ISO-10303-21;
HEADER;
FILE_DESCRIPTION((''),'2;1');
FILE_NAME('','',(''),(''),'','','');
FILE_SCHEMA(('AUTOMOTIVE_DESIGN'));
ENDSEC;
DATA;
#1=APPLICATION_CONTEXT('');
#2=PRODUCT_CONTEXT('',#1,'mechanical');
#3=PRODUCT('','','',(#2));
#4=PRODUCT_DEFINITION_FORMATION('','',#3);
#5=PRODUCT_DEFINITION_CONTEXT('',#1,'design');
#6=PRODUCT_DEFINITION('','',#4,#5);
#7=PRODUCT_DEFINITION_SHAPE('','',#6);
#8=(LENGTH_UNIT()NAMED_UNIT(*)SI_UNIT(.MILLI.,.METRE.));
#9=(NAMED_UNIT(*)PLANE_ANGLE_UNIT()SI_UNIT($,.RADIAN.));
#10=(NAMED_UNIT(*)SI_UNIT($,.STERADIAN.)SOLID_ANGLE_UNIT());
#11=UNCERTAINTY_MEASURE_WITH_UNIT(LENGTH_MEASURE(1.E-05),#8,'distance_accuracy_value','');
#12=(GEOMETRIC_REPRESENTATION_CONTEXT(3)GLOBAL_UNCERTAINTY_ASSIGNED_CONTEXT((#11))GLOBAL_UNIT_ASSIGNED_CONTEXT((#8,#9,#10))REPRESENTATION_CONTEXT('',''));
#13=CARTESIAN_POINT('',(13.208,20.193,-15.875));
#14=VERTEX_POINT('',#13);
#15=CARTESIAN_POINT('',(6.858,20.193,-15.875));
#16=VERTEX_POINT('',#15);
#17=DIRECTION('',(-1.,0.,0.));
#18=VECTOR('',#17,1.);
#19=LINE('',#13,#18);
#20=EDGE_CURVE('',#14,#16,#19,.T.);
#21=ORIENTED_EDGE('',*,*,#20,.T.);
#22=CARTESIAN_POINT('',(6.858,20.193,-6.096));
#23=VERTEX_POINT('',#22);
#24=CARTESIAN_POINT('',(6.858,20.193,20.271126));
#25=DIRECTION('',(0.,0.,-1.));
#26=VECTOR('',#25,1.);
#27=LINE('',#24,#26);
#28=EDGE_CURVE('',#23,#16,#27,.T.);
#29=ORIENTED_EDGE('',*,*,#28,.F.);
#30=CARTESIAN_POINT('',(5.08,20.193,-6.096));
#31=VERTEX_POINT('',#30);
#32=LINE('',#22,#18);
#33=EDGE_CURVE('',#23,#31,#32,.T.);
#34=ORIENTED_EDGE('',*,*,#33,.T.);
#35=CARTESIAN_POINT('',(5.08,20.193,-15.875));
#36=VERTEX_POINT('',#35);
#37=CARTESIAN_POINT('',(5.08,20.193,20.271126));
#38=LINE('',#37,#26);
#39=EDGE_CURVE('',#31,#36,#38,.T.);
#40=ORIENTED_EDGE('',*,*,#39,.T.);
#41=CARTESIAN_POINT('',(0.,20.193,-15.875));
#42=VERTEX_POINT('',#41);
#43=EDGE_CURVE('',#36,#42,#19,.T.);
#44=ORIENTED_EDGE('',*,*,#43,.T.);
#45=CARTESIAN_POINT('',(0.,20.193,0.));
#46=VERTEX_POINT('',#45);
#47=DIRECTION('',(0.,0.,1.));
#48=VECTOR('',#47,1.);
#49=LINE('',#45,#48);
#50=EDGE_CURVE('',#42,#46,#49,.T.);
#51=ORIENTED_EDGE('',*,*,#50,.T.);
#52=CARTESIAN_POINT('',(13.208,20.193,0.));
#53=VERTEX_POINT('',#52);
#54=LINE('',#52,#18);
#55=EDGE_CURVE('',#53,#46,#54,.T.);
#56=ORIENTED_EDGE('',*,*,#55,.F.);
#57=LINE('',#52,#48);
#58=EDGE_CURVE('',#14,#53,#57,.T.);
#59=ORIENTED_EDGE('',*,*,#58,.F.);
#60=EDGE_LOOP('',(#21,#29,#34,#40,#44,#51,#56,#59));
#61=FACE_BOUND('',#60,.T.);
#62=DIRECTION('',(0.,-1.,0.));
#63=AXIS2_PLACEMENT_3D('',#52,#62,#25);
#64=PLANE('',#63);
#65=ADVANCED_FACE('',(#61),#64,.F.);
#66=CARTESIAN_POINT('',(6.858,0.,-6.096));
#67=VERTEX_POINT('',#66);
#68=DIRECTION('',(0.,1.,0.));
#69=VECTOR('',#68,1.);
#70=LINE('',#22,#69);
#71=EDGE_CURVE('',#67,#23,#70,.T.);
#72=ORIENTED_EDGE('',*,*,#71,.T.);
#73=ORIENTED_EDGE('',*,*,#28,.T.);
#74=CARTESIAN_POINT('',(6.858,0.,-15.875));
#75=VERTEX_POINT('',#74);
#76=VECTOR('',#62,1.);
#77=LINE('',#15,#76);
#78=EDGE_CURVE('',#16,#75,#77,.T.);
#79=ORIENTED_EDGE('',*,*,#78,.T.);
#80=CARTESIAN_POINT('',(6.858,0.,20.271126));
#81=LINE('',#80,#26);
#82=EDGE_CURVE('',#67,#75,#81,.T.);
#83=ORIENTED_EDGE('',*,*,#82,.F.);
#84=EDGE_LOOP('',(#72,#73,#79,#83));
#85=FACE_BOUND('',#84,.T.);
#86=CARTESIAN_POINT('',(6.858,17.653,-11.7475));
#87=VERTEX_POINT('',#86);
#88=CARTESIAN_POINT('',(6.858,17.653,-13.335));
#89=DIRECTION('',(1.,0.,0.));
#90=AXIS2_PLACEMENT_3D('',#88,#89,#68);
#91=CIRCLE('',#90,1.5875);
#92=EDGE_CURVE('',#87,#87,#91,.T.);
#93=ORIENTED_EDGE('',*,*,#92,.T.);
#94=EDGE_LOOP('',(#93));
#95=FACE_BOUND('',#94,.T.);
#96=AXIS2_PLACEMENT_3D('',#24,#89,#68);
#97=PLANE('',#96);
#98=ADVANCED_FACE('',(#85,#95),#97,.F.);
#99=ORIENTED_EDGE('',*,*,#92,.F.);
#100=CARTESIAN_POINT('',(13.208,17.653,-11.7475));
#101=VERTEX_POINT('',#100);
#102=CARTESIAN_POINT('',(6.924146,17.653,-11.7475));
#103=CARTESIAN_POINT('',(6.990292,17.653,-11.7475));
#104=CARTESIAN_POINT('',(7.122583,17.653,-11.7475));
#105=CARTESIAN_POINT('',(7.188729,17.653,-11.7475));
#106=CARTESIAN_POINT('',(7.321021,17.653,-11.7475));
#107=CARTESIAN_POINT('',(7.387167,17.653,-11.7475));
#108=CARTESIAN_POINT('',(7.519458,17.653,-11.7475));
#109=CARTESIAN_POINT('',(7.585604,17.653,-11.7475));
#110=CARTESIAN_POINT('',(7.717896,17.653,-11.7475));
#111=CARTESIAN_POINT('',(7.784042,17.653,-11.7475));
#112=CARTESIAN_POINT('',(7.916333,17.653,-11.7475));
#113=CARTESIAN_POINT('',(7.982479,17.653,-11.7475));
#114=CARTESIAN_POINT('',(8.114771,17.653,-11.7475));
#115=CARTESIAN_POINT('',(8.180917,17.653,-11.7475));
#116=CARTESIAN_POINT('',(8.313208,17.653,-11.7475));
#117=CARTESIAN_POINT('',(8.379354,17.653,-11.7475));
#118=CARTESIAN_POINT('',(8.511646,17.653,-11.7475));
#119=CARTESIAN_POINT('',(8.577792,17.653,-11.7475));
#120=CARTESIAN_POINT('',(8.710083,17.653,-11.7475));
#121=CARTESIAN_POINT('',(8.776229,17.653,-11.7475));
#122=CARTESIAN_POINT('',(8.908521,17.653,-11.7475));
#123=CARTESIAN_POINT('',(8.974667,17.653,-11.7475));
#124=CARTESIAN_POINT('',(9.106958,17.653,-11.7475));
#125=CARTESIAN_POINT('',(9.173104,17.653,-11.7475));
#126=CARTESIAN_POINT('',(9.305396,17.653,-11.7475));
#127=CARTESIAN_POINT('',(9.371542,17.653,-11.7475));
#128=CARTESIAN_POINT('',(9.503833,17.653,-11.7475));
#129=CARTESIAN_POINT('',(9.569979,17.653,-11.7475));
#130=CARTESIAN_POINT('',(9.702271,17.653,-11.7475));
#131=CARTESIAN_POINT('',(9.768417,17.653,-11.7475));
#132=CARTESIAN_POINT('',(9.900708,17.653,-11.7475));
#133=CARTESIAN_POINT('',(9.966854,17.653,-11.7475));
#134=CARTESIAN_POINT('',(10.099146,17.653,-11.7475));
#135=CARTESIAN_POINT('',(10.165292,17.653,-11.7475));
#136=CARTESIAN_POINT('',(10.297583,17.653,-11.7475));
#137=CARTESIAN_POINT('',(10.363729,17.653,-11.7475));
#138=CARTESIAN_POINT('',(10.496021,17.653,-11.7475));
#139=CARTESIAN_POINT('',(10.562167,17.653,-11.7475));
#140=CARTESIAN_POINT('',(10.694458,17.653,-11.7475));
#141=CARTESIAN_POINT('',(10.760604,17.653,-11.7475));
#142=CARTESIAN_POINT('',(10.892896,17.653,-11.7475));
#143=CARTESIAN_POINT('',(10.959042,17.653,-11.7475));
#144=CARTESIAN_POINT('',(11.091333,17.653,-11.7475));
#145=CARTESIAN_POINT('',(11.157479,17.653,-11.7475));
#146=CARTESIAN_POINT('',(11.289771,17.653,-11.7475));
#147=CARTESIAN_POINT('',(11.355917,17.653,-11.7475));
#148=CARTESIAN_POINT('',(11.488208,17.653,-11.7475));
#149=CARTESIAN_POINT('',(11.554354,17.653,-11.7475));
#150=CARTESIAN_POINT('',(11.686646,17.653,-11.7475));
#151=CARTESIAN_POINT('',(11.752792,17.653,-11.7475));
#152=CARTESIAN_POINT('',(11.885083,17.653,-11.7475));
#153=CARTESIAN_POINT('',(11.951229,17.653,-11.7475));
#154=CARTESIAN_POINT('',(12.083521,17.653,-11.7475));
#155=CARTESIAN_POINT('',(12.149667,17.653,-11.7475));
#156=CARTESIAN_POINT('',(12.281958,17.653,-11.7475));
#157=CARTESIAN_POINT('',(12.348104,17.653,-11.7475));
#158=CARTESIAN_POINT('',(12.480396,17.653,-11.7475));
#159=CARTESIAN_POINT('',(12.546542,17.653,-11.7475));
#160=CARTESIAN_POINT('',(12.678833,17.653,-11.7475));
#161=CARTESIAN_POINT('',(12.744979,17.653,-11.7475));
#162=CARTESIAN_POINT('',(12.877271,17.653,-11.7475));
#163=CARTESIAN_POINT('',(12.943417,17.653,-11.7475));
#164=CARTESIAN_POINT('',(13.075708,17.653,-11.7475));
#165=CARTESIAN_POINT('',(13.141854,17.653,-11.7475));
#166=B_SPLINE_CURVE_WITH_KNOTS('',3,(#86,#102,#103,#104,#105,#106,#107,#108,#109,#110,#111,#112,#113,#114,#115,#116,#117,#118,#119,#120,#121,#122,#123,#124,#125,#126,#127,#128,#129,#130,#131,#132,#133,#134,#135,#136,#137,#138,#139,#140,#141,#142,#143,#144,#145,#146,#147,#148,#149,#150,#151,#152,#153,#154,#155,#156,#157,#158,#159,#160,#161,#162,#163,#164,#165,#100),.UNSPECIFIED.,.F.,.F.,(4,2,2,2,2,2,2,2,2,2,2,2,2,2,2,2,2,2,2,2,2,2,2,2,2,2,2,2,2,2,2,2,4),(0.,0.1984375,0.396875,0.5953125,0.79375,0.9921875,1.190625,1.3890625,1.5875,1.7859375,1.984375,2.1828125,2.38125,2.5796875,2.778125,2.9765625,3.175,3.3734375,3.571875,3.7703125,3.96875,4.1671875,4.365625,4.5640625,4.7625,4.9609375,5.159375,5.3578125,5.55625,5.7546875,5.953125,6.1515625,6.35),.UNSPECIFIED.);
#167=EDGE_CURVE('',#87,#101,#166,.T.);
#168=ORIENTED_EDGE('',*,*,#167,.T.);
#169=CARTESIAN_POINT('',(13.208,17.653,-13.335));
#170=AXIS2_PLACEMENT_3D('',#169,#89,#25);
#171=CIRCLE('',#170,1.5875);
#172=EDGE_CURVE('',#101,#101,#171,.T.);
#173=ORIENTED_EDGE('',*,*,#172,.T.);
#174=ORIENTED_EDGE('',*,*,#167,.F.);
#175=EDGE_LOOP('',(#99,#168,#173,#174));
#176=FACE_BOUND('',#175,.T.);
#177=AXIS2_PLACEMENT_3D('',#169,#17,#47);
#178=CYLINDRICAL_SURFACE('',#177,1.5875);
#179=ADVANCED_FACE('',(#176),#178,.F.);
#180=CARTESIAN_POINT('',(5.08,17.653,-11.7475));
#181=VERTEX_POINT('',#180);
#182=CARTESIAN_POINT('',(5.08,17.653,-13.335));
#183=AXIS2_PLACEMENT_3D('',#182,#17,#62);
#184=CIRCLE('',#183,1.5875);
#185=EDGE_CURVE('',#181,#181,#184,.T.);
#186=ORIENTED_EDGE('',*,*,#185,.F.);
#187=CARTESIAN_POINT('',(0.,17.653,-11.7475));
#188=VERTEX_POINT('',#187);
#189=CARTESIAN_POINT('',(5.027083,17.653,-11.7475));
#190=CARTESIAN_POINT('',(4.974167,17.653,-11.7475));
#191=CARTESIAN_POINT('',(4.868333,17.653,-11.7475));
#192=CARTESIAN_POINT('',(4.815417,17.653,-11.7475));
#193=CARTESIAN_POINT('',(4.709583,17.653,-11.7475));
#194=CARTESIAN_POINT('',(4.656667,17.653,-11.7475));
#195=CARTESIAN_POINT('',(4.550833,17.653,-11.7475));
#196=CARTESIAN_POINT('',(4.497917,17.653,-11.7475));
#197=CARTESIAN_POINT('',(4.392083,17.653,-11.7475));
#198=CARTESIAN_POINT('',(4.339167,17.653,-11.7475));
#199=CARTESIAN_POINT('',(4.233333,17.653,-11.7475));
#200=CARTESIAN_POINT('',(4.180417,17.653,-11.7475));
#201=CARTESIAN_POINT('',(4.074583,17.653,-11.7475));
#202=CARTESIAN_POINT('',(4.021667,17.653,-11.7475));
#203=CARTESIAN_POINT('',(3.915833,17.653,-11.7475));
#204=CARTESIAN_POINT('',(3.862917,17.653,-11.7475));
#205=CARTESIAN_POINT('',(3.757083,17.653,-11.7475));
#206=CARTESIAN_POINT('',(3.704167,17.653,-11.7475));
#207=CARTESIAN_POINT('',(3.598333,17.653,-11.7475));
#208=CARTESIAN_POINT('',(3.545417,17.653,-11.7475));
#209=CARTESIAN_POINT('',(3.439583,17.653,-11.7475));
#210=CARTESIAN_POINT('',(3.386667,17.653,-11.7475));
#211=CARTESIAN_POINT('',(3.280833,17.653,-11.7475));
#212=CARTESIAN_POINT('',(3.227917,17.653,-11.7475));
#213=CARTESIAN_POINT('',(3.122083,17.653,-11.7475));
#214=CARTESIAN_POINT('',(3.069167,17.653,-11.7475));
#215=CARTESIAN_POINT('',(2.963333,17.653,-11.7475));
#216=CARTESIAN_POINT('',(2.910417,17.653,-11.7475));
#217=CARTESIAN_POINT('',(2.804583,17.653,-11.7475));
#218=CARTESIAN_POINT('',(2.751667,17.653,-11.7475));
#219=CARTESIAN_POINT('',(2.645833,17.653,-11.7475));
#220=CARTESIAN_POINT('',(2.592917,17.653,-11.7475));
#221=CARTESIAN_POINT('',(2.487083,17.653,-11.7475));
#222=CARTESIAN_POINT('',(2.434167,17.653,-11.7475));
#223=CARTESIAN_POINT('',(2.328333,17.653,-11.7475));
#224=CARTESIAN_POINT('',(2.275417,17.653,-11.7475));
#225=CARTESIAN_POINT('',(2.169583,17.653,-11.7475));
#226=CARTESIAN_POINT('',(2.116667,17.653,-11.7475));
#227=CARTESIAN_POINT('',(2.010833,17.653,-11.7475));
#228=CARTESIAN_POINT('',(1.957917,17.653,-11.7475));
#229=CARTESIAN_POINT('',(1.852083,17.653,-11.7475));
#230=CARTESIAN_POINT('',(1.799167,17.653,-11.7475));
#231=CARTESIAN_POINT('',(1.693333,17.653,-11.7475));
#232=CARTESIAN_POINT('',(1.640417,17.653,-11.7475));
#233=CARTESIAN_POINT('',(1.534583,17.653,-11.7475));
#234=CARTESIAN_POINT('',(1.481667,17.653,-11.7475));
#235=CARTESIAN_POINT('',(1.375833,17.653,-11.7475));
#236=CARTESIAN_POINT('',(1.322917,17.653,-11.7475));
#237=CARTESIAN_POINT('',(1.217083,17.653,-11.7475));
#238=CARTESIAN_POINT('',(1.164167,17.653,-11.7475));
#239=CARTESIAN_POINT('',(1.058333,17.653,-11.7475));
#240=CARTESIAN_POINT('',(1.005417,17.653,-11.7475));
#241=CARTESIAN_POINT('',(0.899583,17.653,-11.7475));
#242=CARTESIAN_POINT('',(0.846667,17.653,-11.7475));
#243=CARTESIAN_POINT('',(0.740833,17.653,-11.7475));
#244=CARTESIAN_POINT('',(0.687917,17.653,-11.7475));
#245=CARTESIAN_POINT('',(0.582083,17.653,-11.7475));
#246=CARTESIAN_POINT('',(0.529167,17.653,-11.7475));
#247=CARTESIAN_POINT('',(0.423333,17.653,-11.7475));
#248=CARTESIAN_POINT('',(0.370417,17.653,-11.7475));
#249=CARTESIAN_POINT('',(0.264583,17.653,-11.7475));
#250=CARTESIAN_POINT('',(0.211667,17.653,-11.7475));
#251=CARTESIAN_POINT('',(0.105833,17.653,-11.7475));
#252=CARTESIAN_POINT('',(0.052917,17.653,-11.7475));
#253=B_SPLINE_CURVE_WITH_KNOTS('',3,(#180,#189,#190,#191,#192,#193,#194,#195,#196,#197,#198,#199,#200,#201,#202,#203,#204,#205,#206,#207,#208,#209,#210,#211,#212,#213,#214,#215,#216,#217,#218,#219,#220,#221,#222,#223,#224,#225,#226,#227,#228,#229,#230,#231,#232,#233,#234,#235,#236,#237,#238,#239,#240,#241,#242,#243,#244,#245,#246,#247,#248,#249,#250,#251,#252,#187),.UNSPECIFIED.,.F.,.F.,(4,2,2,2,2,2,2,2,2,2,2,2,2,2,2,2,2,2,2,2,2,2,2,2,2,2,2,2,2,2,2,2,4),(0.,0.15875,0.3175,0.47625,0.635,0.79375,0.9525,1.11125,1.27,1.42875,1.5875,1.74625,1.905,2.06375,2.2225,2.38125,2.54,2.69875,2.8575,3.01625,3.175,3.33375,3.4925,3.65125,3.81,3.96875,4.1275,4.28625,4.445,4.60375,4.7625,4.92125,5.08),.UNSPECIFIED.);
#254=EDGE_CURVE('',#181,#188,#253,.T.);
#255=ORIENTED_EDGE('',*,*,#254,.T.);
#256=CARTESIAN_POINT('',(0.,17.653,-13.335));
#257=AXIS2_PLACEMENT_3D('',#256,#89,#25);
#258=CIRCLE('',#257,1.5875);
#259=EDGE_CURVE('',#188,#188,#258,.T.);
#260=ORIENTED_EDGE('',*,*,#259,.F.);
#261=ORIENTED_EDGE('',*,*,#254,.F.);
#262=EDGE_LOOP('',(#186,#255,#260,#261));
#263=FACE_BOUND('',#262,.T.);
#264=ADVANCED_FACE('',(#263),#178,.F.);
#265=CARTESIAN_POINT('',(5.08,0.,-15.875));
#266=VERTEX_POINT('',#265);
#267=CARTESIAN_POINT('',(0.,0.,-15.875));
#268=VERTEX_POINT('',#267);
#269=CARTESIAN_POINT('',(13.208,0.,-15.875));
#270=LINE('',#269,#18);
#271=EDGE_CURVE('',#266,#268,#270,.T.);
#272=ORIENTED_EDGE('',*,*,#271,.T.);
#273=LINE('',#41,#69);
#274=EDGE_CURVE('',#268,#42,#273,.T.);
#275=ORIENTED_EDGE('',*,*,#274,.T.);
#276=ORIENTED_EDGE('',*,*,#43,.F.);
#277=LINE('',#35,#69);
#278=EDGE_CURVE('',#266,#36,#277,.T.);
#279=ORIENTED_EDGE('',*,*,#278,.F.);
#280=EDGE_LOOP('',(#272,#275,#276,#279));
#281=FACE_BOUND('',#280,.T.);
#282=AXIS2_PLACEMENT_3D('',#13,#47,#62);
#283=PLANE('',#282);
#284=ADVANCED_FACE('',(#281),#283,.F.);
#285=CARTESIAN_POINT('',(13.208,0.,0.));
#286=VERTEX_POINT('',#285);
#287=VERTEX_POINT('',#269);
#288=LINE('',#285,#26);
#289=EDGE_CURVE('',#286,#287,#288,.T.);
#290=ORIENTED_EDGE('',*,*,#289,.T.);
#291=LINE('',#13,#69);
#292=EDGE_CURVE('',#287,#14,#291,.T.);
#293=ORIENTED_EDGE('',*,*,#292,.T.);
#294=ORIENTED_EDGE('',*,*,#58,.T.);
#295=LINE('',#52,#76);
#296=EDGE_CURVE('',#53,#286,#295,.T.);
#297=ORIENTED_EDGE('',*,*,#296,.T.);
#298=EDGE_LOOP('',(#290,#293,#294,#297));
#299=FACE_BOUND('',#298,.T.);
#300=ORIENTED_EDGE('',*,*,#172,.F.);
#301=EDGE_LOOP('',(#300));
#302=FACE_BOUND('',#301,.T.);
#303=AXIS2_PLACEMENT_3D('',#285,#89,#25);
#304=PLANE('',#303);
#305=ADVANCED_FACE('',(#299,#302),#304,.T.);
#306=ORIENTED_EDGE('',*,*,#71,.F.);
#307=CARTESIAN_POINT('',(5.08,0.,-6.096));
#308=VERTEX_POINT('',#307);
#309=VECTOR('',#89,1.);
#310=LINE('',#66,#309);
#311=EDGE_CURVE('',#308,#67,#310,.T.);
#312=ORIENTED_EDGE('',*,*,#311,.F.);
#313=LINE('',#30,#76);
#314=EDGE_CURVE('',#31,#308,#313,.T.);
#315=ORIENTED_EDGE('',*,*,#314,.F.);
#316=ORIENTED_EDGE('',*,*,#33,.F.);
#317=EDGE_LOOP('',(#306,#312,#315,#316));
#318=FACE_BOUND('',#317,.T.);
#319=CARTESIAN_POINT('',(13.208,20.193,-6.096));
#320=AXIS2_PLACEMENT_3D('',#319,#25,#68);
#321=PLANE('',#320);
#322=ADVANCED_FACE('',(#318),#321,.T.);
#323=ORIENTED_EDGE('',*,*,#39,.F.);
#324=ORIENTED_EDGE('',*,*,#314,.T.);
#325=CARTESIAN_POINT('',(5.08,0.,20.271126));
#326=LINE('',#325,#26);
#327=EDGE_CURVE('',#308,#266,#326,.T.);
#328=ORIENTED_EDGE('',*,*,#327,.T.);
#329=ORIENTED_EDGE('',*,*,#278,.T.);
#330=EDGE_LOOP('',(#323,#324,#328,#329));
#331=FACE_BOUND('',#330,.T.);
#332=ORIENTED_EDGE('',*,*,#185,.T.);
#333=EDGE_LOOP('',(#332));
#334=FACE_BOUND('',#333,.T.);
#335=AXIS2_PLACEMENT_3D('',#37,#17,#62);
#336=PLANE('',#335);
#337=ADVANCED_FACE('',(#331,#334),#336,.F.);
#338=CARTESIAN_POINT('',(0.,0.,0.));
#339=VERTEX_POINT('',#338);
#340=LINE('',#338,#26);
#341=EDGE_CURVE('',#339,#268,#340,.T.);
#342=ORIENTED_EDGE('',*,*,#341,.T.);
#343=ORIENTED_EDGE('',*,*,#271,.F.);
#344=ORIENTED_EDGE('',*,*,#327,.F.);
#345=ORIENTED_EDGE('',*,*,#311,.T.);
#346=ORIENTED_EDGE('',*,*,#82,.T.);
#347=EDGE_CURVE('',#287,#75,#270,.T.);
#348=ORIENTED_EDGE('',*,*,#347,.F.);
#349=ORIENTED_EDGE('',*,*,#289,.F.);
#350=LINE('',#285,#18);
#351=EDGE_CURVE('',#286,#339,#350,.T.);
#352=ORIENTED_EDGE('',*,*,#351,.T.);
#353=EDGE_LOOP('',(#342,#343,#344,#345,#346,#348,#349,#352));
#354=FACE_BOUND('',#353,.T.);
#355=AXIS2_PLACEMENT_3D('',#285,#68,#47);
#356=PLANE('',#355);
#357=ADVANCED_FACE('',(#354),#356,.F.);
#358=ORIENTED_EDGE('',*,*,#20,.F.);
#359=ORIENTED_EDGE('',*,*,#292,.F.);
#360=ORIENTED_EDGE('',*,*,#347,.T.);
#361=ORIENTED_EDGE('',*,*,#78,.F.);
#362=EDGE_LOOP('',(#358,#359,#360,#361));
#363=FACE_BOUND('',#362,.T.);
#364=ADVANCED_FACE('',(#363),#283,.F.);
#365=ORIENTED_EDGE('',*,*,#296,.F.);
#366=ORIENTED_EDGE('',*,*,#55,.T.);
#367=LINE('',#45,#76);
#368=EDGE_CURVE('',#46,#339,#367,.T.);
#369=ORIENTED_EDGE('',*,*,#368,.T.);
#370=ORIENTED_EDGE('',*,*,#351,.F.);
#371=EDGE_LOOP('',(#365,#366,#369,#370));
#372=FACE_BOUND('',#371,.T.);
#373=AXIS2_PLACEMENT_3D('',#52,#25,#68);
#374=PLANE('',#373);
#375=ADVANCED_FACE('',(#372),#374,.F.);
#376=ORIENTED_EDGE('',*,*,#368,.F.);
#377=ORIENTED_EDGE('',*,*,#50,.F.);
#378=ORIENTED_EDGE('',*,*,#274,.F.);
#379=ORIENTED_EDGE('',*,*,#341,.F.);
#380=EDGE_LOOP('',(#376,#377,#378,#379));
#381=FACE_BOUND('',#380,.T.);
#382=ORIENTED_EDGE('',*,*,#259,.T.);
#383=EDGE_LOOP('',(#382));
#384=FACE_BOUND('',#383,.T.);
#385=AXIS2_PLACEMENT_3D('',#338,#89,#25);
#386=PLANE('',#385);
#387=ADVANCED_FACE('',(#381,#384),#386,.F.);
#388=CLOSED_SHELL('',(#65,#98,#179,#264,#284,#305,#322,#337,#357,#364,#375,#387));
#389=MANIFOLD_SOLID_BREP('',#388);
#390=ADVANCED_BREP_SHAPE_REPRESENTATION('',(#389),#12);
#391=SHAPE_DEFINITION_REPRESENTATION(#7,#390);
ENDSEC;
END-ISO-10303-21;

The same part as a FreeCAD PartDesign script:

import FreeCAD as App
import Part
import Sketcher
Q = App.Units.Quantity


def add_polygon(sketch, points):
    """Adds a closed chain of lines whose ends are joined by coincident constraints."""
    first, n = sketch.GeometryCount, len(points)
    for a, b in zip(points, points[1:] + points[:1]):
        sketch.addGeometry(Part.LineSegment(App.Vector(*a, 0), App.Vector(*b, 0)), False)
    for i in range(n):
        sketch.addConstraint(Sketcher.Constraint("Coincident", first + i, 2, first + (i + 1) % n, 1))

doc = App.newDocument("Part")
body = doc.addObject("PartDesign::Body", "Body")

# Sketch on YZ plane
sketch1 = doc.addObject("Sketcher::SketchObject", "Sketch")
body.addObject(sketch1)
sketch1.AttachmentSupport = (doc.YZ_Plane, [""])
sketch1.MapMode = "FlatFace"
add_polygon(sketch1, [(20.2, 0), (0, 0), (0, -15.9), (20.2, -15.9)])  # lines 0-3
sketch1.addGeometry(Part.Circle(App.Vector(17.7, -13.3, 0), App.Vector(0, 0, 1), 1.6), False)  # 4
sketch1.addConstraint(Sketcher.Constraint("Horizontal", 0))
sketch1.addConstraint(Sketcher.Constraint("Vertical", 1))
sketch1.addConstraint(Sketcher.Constraint("Horizontal", 2))
sketch1.addConstraint(Sketcher.Constraint("Vertical", 3))
sketch1.addConstraint(Sketcher.Constraint("Coincident", 0, 2, -1, 1))
sketch1.addConstraint(Sketcher.Constraint("Diameter", 4, Q("0.125 in")))
sketch1.addConstraint(Sketcher.Constraint("DistanceY", 1, 2, 4, 3, Q("0.1 in")))
sketch1.addConstraint(Sketcher.Constraint("DistanceX", 4, 3, 2, 2, Q("0.1 in")))
sketch1.addConstraint(Sketcher.Constraint("DistanceX", 0, 2, 0, 1, Q("0.795 in")))
sketch1.addConstraint(Sketcher.Constraint("DistanceY", 1, 2, 1, 1, Q("0.625 in")))
pad1 = doc.addObject("PartDesign::Pad", "Pad")
body.addObject(pad1)
pad1.Profile = sketch1
pad1.Length = Q("0.52 in")

# Sketch on XY plane
sketch2 = doc.addObject("Sketcher::SketchObject", "Sketch001")
body.addObject(sketch2)
sketch2.AttachmentSupport = (doc.XY_Plane, [""])
sketch2.MapMode = "FlatFace"
sketch2.AttachmentOffset = App.Placement(App.Vector(0, 0, -0.625 * 25.4), App.Rotation())
add_polygon(sketch2, [(6.9, 20.2), (6.9, 0), (5.1, 0), (5.1, 20.2)])  # lines 0-3
sketch2.addConstraint(Sketcher.Constraint("Vertical", 0))
sketch2.addConstraint(Sketcher.Constraint("Horizontal", 1))
sketch2.addConstraint(Sketcher.Constraint("Vertical", 2))
sketch2.addConstraint(Sketcher.Constraint("Horizontal", 3))
sketch2.addConstraint(Sketcher.Constraint("PointOnObject", 0, 2, -1))
sketch2.addConstraint(Sketcher.Constraint("DistanceX", 1, 2, 1, 1, Q("0.07 in")))
sketch2.addConstraint(Sketcher.Constraint("DistanceX", -1, 1, 1, 2, Q("0.2 in")))
sketch2.addConstraint(Sketcher.Constraint("DistanceY", 0, 2, 0, 1, Q("0.795 in")))
pocket1 = doc.addObject("PartDesign::Pocket", "Pocket")
body.addObject(pocket1)
pocket1.Profile = sketch2
pocket1.Length = Q("0.385 in")
pocket1.Reversed = True

doc.recompute()
